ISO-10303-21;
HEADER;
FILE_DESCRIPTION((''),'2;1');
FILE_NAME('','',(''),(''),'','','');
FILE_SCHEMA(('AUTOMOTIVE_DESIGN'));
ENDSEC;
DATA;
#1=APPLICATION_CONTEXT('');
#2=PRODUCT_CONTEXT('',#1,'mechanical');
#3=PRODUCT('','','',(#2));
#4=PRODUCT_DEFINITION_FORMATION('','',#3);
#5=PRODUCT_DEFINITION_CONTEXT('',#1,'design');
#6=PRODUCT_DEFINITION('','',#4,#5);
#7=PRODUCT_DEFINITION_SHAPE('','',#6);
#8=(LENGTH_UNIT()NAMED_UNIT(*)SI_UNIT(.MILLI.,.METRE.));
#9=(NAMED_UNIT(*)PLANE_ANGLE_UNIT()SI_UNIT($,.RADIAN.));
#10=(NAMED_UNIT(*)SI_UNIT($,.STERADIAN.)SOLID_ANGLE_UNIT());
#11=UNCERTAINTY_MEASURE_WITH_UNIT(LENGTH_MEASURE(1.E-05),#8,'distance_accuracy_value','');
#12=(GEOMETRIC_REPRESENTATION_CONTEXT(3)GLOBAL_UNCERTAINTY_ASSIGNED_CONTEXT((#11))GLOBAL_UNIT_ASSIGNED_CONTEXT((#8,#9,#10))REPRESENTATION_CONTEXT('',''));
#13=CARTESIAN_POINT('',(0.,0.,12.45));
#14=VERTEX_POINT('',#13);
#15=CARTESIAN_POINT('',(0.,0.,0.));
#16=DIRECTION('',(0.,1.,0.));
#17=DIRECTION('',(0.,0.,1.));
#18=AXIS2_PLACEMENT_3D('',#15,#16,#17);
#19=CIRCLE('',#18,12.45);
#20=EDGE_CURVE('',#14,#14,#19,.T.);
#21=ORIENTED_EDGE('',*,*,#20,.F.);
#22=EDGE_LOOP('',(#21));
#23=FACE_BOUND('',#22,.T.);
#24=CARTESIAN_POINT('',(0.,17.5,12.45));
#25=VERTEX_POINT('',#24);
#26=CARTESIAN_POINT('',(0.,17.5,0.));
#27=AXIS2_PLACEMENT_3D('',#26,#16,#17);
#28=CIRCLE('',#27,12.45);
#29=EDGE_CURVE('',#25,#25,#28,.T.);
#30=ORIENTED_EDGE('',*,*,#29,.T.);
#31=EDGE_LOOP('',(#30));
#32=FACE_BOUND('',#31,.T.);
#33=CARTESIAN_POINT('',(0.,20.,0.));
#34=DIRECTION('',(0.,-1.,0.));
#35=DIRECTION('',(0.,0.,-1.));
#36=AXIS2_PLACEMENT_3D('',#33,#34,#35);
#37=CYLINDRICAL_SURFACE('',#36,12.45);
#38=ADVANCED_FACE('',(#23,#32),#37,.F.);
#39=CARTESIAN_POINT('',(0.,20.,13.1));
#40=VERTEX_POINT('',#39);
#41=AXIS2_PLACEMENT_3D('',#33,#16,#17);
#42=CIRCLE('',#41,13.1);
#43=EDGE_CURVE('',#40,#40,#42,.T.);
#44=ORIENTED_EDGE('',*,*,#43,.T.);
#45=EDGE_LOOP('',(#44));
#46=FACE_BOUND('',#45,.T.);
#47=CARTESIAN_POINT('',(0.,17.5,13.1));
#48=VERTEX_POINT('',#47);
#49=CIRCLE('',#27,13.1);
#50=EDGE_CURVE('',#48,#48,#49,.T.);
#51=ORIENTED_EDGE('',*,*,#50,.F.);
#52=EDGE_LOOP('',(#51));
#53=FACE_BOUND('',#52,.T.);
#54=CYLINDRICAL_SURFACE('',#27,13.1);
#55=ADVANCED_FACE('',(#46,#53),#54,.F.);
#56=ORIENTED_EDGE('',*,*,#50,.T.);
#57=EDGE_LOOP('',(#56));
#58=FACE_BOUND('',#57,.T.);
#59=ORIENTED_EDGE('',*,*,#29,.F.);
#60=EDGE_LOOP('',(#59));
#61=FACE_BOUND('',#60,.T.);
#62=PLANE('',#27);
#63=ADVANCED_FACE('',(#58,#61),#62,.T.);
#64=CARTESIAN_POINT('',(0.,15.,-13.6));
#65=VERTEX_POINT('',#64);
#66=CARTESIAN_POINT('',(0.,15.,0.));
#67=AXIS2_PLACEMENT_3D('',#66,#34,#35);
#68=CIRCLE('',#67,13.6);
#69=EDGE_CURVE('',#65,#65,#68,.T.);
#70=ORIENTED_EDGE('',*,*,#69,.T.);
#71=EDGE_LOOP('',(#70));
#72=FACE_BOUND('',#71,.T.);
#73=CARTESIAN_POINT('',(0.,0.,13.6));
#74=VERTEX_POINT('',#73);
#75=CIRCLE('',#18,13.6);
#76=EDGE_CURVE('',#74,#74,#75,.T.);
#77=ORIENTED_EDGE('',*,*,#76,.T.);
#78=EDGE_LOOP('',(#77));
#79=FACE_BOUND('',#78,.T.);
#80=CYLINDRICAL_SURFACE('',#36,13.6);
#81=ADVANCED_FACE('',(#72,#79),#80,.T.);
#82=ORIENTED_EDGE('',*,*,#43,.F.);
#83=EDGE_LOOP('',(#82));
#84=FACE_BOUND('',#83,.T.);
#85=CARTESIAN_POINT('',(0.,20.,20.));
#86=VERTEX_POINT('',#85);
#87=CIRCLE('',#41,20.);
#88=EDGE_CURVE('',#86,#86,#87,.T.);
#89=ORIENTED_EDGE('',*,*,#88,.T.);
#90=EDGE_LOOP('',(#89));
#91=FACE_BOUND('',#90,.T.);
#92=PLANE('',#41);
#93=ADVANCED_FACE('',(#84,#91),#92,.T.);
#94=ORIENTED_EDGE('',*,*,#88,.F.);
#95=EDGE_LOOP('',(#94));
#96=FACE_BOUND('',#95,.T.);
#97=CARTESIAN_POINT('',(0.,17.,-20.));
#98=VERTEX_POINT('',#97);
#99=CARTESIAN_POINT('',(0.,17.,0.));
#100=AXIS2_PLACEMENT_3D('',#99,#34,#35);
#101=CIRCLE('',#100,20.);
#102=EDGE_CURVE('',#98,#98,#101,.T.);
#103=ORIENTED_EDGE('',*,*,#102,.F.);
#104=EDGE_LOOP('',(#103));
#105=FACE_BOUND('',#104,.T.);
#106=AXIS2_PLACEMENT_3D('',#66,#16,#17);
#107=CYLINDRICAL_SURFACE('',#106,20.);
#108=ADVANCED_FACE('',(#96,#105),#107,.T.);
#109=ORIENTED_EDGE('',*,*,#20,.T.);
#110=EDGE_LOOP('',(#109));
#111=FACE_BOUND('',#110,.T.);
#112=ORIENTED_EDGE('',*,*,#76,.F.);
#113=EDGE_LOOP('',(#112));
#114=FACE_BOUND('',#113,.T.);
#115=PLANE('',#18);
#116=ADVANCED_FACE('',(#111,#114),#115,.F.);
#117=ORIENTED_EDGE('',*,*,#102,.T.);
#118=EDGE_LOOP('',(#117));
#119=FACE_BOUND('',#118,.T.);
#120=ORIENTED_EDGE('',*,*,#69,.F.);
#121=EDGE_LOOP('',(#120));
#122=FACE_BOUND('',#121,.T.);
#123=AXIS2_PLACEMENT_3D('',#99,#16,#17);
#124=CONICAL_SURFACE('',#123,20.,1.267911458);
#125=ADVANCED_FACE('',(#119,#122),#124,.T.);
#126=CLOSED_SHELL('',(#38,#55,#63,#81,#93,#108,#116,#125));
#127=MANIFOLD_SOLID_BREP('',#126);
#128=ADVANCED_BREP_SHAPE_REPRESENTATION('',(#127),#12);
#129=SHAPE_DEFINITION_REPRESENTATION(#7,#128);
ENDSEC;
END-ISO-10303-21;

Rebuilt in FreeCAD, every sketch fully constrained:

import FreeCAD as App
import Part
import Sketcher
from FreeCAD import Vector
Q = App.Units.Quantity

doc = App.newDocument("Part")
body = doc.addObject("PartDesign::Body", "Body")

# Sketch on XZ plane
sketch1 = doc.addObject("Sketcher::SketchObject", "Sketch")
body.addObject(sketch1)
sketch1.AttachmentSupport = (doc.XZ_Plane, [""])
sketch1.MapMode = "FlatFace"
sketch1.addGeometry([
    Part.Circle(Vector(0, 0, 0), Vector(0, 0, 1), 14),
    Part.Circle(Vector(0, 0, 0), Vector(0, 0, 1), 12),
], False)
sketch1.addConstraint([
    Sketcher.Constraint("Coincident", 0, 3, -1, 1),
    Sketcher.Constraint("Coincident", 1, 3, -1, 1),
    Sketcher.Constraint("Diameter", 0, Q("27.2 mm")),
    Sketcher.Constraint("Diameter", 1, Q("24.9 mm")),
])
pad1 = doc.addObject("PartDesign::Pad", "Pad")
body.addObject(pad1)
pad1.Profile = sketch1
pad1.Length = 20
pad1.Reversed = True

# Sketch on XZ plane
sketch2 = doc.addObject("Sketcher::SketchObject", "Sketch001")
body.addObject(sketch2)
sketch2.AttachmentSupport = (doc.XZ_Plane, [""])
sketch2.MapMode = "FlatFace"
sketch2.AttachmentOffset = App.Placement(Vector(0, 0, -20), App.Rotation())
sketch2.addGeometry(Part.Circle(Vector(0, 0, 0), Vector(0, 0, 1), 20), False)
sketch2.addConstraint([
    Sketcher.Constraint("Coincident", 0, 3, -1, 1),
    Sketcher.Constraint("Diameter", 0, Q("40 mm")),
])
pad2 = doc.addObject("PartDesign::Pad", "Pad001")
body.addObject(pad2)
pad2.Profile = sketch2
pad2.Length = 5

# Sketch on XZ plane
sketch3 = doc.addObject("Sketcher::SketchObject", "Sketch002")
body.addObject(sketch3)
sketch3.AttachmentSupport = (doc.XZ_Plane, [""])
sketch3.MapMode = "FlatFace"
sketch3.AttachmentOffset = App.Placement(Vector(0, 0, -20), App.Rotation())
sketch3.addGeometry(Part.Circle(Vector(0, 0, 0), Vector(0, 0, 1), 13), False)
sketch3.addConstraint([
    Sketcher.Constraint("Coincident", 0, 3, -1, 1),
    Sketcher.Constraint("Diameter", 0, Q("26.2 mm")),
])
pocket1 = doc.addObject("PartDesign::Pocket", "Pocket")
body.addObject(pocket1)
pocket1.Profile = sketch3
pocket1.Length = 2.5
pocket1.Reversed = True

# Sketch on XZ plane
sketch4 = doc.addObject("Sketcher::SketchObject", "Sketch003")
body.addObject(sketch4)
sketch4.AttachmentSupport = (doc.XZ_Plane, [""])
sketch4.MapMode = "FlatFace"
sketch4.AttachmentOffset = App.Placement(Vector(0, 0, -15), App.Rotation())
sketch4.addGeometry(Part.Circle(Vector(0, 0, 0), Vector(0, 0, 1), 12), False)
sketch4.addConstraint([
    Sketcher.Constraint("Coincident", 0, 3, -1, 1),
    Sketcher.Constraint("Diameter", 0, Q("24.9 mm")),
])
pocket2 = doc.addObject("PartDesign::Pocket", "Pocket001")
body.addObject(pocket2)
pocket2.Profile = sketch4
pocket2.Length = 10

# Sketch on YZ plane
sketch5 = doc.addObject("Sketcher::SketchObject", "Sketch004")
body.addObject(sketch5)
sketch5.AttachmentSupport = (doc.YZ_Plane, [""])
sketch5.MapMode = "FlatFace"
sketch5.addGeometry([
    Part.LineSegment(Vector(17, -20, 0), Vector(15, -13.6, 0)),
    Part.LineSegment(Vector(15, -13.6, 0), Vector(15, -20, 0)),
    Part.LineSegment(Vector(15, -20, 0), Vector(17, -20, 0)),
], False)
sketch5.addConstraint([
    Sketcher.Constraint("Coincident", 0, 2, 1, 1),
    Sketcher.Constraint("Coincident", 1, 2, 2, 1),
    Sketcher.Constraint("Coincident", 2, 2, 0, 1),
    Sketcher.Constraint("Vertical", 1),
    Sketcher.Constraint("Horizontal", 2),
    Sketcher.Constraint("DistanceX", 2, 1, 2, 2, Q("2 mm")),
    Sketcher.Constraint("DistanceY", 1, 2, 1, 1, Q("6.4 mm")),
    Sketcher.Constraint("DistanceX", -1, 1, 0, 2, Q("15 mm")),
    Sketcher.Constraint("DistanceY", 1, 2, -1, 1, Q("20 mm")),
])
groove = doc.addObject("PartDesign::Groove", "Groove")
body.addObject(groove)
groove.Profile = sketch5
groove.ReferenceAxis = (sketch5, ["H_Axis"])
groove.Angle = 360

doc.recompute()
